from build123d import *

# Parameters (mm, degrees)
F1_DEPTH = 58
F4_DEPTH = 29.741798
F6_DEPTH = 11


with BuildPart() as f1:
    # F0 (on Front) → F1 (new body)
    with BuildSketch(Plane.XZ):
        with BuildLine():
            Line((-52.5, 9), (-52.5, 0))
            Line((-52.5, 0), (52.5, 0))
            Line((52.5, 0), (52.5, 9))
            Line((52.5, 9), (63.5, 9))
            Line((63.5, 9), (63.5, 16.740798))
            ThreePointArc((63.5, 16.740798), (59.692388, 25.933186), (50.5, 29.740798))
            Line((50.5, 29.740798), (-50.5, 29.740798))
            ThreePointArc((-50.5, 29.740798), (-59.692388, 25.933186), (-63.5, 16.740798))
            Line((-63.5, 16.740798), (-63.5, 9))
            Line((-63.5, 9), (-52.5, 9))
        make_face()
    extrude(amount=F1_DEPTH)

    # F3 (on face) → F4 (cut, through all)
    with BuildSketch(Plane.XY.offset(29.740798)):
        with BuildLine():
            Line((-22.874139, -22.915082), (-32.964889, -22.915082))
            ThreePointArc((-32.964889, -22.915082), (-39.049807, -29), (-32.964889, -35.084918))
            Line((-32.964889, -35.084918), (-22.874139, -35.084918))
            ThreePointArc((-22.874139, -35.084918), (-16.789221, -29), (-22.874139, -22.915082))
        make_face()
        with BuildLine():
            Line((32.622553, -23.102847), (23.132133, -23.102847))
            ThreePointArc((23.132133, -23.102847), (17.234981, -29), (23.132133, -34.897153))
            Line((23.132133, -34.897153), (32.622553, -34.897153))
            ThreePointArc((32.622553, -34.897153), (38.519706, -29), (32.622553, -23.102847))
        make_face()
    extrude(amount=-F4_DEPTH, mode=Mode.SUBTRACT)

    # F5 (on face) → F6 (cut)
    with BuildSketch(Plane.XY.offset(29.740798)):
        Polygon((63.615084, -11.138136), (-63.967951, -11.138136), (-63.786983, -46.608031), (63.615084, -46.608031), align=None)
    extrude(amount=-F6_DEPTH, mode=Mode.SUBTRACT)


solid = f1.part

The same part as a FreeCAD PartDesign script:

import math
import FreeCAD as App
import Part
import Sketcher
Q = App.Units.Quantity


def add_polygon(sketch, points):
    """Adds a closed chain of lines whose ends are joined by coincident constraints."""
    first, n = sketch.GeometryCount, len(points)
    for a, b in zip(points, points[1:] + points[:1]):
        sketch.addGeometry(Part.LineSegment(App.Vector(*a, 0), App.Vector(*b, 0)), False)
    for i in range(n):
        sketch.addConstraint(Sketcher.Constraint("Coincident", first + i, 2, first + (i + 1) % n, 1))

doc = App.newDocument("Part")
params = doc.addObject("Spreadsheet::Sheet", "Params")
for row, (alias, value) in enumerate([
    ("sketch1_radius", "13.000001 mm"),
    ("sketch1_width", "105 mm"),
    ("sketch1_width2", "11 mm"),
    ("sketch1_height", "9 mm"),
    ("pad1_length", "58 mm"),
    ("pocket2_length", "11 mm"),
], start=1):
    params.set(f"A{row}", alias)
    params.set(f"B{row}", "=" + value)
    params.setAlias(f"B{row}", alias)

body = doc.addObject("PartDesign::Body", "Body")

sketch1 = body.newObject("Sketcher::SketchObject", "Sketch")
sketch1.AttachmentSupport = (doc.getObject("XZ_Plane"), [""])
sketch1.MapMode = "FlatFace"
sketch1.addGeometry([
    Part.LineSegment(App.Vector(-52, 9, 0), App.Vector(-52, 0, 0)),
    Part.LineSegment(App.Vector(-52, 0, 0), App.Vector(52, 0, 0)),
    Part.LineSegment(App.Vector(52, 0, 0), App.Vector(52, 9, 0)),
    Part.LineSegment(App.Vector(52, 9, 0), App.Vector(64, 9, 0)),
    Part.LineSegment(App.Vector(64, 9, 0), App.Vector(64, 17, 0)),
    Part.ArcOfCircle(Part.Circle(App.Vector(50, 17, 0), App.Vector(0, 0, 1), 13), math.radians(0), math.radians(90)),
    Part.LineSegment(App.Vector(50, 30, 0), App.Vector(-50, 30, 0)),
    Part.ArcOfCircle(Part.Circle(App.Vector(-50, 17, 0), App.Vector(0, 0, 1), 13), math.radians(90), math.radians(180)),
    Part.LineSegment(App.Vector(-64, 17, 0), App.Vector(-64, 9, 0)),
    Part.LineSegment(App.Vector(-64, 9, 0), App.Vector(-52, 9, 0)),
], False)
sketch1.addConstraint([
    Sketcher.Constraint("Coincident", 0, 2, 1, 1),
    Sketcher.Constraint("Coincident", 1, 2, 2, 1),
    Sketcher.Constraint("Coincident", 2, 2, 3, 1),
    Sketcher.Constraint("Coincident", 3, 2, 4, 1),
    Sketcher.Constraint("Tangent", 4, 2, 5, 1),
    Sketcher.Constraint("Tangent", 5, 2, 6, 1),
    Sketcher.Constraint("Tangent", 6, 2, 7, 1),
    Sketcher.Constraint("Tangent", 7, 2, 8, 1),
    Sketcher.Constraint("Coincident", 8, 2, 9, 1),
    Sketcher.Constraint("Coincident", 9, 2, 0, 1),
    Sketcher.Constraint("Vertical", 0),
    Sketcher.Constraint("Horizontal", 1),
    Sketcher.Constraint("Vertical", 2),
    Sketcher.Constraint("Horizontal", 3),
    Sketcher.Constraint("Vertical", 4),
    Sketcher.Constraint("Horizontal", 6),
    Sketcher.Constraint("Vertical", 8),
    Sketcher.Constraint("Horizontal", 9),
    Sketcher.Constraint("Equal", 5, 7),
    Sketcher.Constraint("Symmetric", 0, 2, 1, 2, -1, 1),
    Sketcher.Constraint("Symmetric", 3, 2, 8, 2, -2),
    Sketcher.Constraint("Radius", 5, Q("13.000001 mm")),
    Sketcher.Constraint("DistanceX", 1, 1, 1, 2, Q("105 mm")),
    Sketcher.Constraint("DistanceX", 3, 1, 3, 2, Q("11 mm")),
    Sketcher.Constraint("DistanceY", 0, 2, 0, 1, Q("9 mm")),
    Sketcher.Constraint("DistanceY", 4, 1, 4, 2, Q("7.740798 mm")),
])
sketch1.setExpression("Constraints[21]", "Params.sketch1_radius")
sketch1.setExpression("Constraints[22]", "Params.sketch1_width")
sketch1.setExpression("Constraints[23]", "Params.sketch1_width2")
sketch1.setExpression("Constraints[24]", "Params.sketch1_height")
pad1 = body.newObject("PartDesign::Pad", "Pad")
pad1.Profile = sketch1
pad1.setExpression("Length", "Params.pad1_length")

sketch2 = body.newObject("Sketcher::SketchObject", "Sketch001")
sketch2.AttachmentSupport = (doc.getObject("XY_Plane"), [""])
sketch2.MapMode = "FlatFace"
sketch2.AttachmentOffset = App.Placement(App.Vector(0, 0, 29.740798), App.Rotation())
sketch2.addGeometry([
    Part.LineSegment(App.Vector(-23, -23, 0), App.Vector(-33, -23, 0)),
    Part.ArcOfCircle(Part.Circle(App.Vector(-33, -29, 0), App.Vector(0, 0, 1), 6), math.radians(90), math.radians(270)),
    Part.LineSegment(App.Vector(-33, -35, 0), App.Vector(-23, -35, 0)),
    Part.ArcOfCircle(Part.Circle(App.Vector(-23, -29, 0), App.Vector(0, 0, 1), 6), math.radians(-90), math.radians(90)),
    Part.LineSegment(App.Vector(33, -23, 0), App.Vector(23, -23, 0)),
    Part.ArcOfCircle(Part.Circle(App.Vector(23, -29, 0), App.Vector(0, 0, 1), 6), math.radians(90), math.radians(270)),
    Part.LineSegment(App.Vector(23, -35, 0), App.Vector(33, -35, 0)),
    Part.ArcOfCircle(Part.Circle(App.Vector(33, -29, 0), App.Vector(0, 0, 1), 6), math.radians(-90), math.radians(90)),
], False)
sketch2.addConstraint([
    Sketcher.Constraint("Tangent", 0, 2, 1, 1),
    Sketcher.Constraint("Tangent", 1, 2, 2, 1),
    Sketcher.Constraint("Tangent", 2, 2, 3, 1),
    Sketcher.Constraint("Tangent", 3, 2, 0, 1),
    Sketcher.Constraint("Tangent", 4, 2, 5, 1),
    Sketcher.Constraint("Tangent", 5, 2, 6, 1),
    Sketcher.Constraint("Tangent", 6, 2, 7, 1),
    Sketcher.Constraint("Tangent", 7, 2, 4, 1),
    Sketcher.Constraint("Horizontal", 0),
    Sketcher.Constraint("Horizontal", 2),
    Sketcher.Constraint("Horizontal", 4),
    Sketcher.Constraint("Horizontal", 6),
    Sketcher.Constraint("Horizontal", 3, 3, 5, 3),
    Sketcher.Constraint("DistanceY", 1, 3, -1, 1, Q("29 mm")),
    Sketcher.Constraint("Radius", 1, Q("6.084918 mm")),
    Sketcher.Constraint("Radius", 5, Q("5.897153 mm")),
    Sketcher.Constraint("DistanceX", 0, 2, 0, 1, Q("10.09075 mm")),
    Sketcher.Constraint("DistanceX", 4, 2, 4, 1, Q("9.49042 mm")),
    Sketcher.Constraint("DistanceX", 1, 3, -1, 1, Q("32.964889 mm")),
    Sketcher.Constraint("DistanceX", 3, 2, 4, 2, Q("46.006272 mm")),
])
pocket1 = body.newObject("PartDesign::Pocket", "Pocket")
pocket1.Profile = sketch2
pocket1.Type = "ThroughAll"

sketch3 = body.newObject("Sketcher::SketchObject", "Sketch002")
sketch3.AttachmentSupport = (doc.getObject("XY_Plane"), [""])
sketch3.MapMode = "FlatFace"
sketch3.AttachmentOffset = App.Placement(App.Vector(0, 0, 29.740798), App.Rotation())
add_polygon(sketch3, [(64, -11), (-64, -11), (-64, -47), (64, -47)])
sketch3.addConstraint([
    Sketcher.Constraint("Horizontal", 0),
    Sketcher.Constraint("Horizontal", 2),
    Sketcher.Constraint("Vertical", 3),
    Sketcher.Constraint("DistanceX", 0, 2, 0, 1, Q("127.583035 mm")),
    Sketcher.Constraint("DistanceX", 2, 1, 2, 2, Q("127.402067 mm")),
    Sketcher.Constraint("DistanceY", 3, 1, 3, 2, Q("35.469895 mm")),
    Sketcher.Constraint("DistanceX", 0, 2, -1, 1, Q("63.967951 mm")),
    Sketcher.Constraint("DistanceY", 1, 2, -1, 1, Q("46.608031 mm")),
])
pocket2 = body.newObject("PartDesign::Pocket", "Pocket001")
pocket2.Profile = sketch3
pocket2.setExpression("Length", "Params.pocket2_length")

doc.recompute()
